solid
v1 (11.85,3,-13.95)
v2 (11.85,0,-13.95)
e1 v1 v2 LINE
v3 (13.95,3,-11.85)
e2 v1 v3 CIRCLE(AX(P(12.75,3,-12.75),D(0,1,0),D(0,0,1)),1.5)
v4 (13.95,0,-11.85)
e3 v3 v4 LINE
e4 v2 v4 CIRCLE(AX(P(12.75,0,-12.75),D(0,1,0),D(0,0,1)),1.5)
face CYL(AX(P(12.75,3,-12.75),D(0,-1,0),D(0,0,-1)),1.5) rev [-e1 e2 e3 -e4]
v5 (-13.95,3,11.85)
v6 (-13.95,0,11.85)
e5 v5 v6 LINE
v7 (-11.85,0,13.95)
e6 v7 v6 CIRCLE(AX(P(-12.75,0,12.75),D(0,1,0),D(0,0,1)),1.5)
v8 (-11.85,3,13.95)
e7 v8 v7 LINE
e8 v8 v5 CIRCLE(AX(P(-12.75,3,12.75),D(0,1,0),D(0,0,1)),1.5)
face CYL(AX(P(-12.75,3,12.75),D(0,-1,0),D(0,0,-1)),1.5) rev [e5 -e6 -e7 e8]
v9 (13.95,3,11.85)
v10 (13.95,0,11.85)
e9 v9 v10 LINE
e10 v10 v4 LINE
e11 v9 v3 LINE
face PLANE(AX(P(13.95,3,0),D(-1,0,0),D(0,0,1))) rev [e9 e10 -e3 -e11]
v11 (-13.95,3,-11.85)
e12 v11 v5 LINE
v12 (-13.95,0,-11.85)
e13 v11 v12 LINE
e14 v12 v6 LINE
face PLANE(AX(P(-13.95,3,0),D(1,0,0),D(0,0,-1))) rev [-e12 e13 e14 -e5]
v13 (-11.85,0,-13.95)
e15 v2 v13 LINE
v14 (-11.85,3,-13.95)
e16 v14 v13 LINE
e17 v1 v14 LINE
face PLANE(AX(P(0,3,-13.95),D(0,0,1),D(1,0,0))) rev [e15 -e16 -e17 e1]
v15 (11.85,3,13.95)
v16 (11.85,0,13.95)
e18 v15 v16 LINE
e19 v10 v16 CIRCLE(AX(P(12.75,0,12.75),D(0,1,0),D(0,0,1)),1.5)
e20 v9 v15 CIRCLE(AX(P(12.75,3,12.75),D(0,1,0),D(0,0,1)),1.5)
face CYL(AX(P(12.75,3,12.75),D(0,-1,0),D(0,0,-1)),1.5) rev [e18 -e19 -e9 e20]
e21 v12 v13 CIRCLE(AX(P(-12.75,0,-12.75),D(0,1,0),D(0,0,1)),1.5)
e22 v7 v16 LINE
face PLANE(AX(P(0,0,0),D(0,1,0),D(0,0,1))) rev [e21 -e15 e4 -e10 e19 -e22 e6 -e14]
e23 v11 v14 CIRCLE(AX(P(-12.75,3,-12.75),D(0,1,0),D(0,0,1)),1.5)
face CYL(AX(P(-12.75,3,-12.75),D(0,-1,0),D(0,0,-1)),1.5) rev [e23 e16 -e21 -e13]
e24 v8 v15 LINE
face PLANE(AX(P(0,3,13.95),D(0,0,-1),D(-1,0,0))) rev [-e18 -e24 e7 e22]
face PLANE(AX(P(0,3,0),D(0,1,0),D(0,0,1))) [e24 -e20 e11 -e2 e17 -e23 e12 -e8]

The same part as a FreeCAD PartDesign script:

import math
import FreeCAD as App
import Part
import Sketcher
Q = App.Units.Quantity

doc = App.newDocument("Part")
body = doc.addObject("PartDesign::Body", "Body")

# Sketch on XZ plane
sketch1 = body.newObject("Sketcher::SketchObject", "Sketch")
sketch1.AttachmentSupport = (doc.getObject("XZ_Plane"), [""])
sketch1.MapMode = "FlatFace"
sketch1.addGeometry(Part.ArcOfCircle(Part.Circle(App.Vector(-12.8, -12.8, 0), App.Vector(0, 0, 1), 1.5), math.radians(0), math.radians(143)), False)
sketch1.addGeometry(Part.LineSegment(App.Vector(-13.9, -11.8, 0), App.Vector(-13.9, 11.8, 0)), False)
sketch1.addGeometry(Part.ArcOfCircle(Part.Circle(App.Vector(-12.8, 12.8, 0), App.Vector(0, 0, 1), 1.5), math.radians(-143), math.radians(0)), False)
sketch1.addGeometry(Part.ArcOfCircle(Part.Circle(App.Vector(-12.7, 12.8, 0), App.Vector(0, 0, 1), 1.5), math.radians(0), math.radians(53)), False)
sketch1.addGeometry(Part.LineSegment(App.Vector(-11.8, 13.9, 0), App.Vector(11.8, 13.9, 0)), False)
sketch1.addGeometry(Part.ArcOfCircle(Part.Circle(App.Vector(12.8, 12.8, 0), App.Vector(0, 0, 1), 1.5), math.radians(127), math.radians(323)), False)
sketch1.addGeometry(Part.LineSegment(App.Vector(13.9, 11.8, 0), App.Vector(13.9, -11.8, 0)), False)
sketch1.addGeometry(Part.ArcOfCircle(Part.Circle(App.Vector(12.8, -12.8, 0), App.Vector(0, 0, 1), 1.5), math.radians(37), math.radians(233)), False)
sketch1.addGeometry(Part.LineSegment(App.Vector(11.8, -13.9, 0), App.Vector(-11.8, -13.9, 0)), False)
sketch1.addGeometry(Part.ArcOfCircle(Part.Circle(App.Vector(-12.8, -12.7, 0), App.Vector(0, 0, 1), 1.5), math.radians(-53), math.radians(0)), False)
sketch1.addConstraint(Sketcher.Constraint("Coincident", 0, 2, 1, 1))
sketch1.addConstraint(Sketcher.Constraint("Coincident", 1, 2, 2, 1))
sketch1.addConstraint(Sketcher.Constraint("Tangent", 2, 2, 3, 1))
sketch1.addConstraint(Sketcher.Constraint("Coincident", 3, 2, 4, 1))
sketch1.addConstraint(Sketcher.Constraint("Coincident", 4, 2, 5, 1))
sketch1.addConstraint(Sketcher.Constraint("Coincident", 5, 2, 6, 1))
sketch1.addConstraint(Sketcher.Constraint("Coincident", 6, 2, 7, 1))
sketch1.addConstraint(Sketcher.Constraint("Coincident", 7, 2, 8, 1))
sketch1.addConstraint(Sketcher.Constraint("Coincident", 8, 2, 9, 1))
sketch1.addConstraint(Sketcher.Constraint("Tangent", 9, 2, 0, 1))
sketch1.addConstraint(Sketcher.Constraint("Vertical", 1))
sketch1.addConstraint(Sketcher.Constraint("Horizontal", 4))
sketch1.addConstraint(Sketcher.Constraint("Vertical", 6))
sketch1.addConstraint(Sketcher.Constraint("Horizontal", 8))
sketch1.addConstraint(Sketcher.Constraint("Equal", 0, 2))
sketch1.addConstraint(Sketcher.Constraint("Equal", 2, 3))
sketch1.addConstraint(Sketcher.Constraint("Equal", 3, 5))
sketch1.addConstraint(Sketcher.Constraint("Equal", 5, 7))
sketch1.addConstraint(Sketcher.Constraint("Equal", 7, 9))
sketch1.addConstraint(Sketcher.Constraint("Symmetric", 0, 3, 5, 3, -1, 1))
sketch1.addConstraint(Sketcher.Constraint("Symmetric", 2, 3, 7, 3, -1, 1))
sketch1.addConstraint(Sketcher.Constraint("Symmetric", 2, 3, 5, 3, -2))
sketch1.addConstraint(Sketcher.Constraint("Horizontal", 5, 3, 2, 2))
sketch1.addConstraint(Sketcher.Constraint("Horizontal", 1, 2, 5, 2))
sketch1.addConstraint(Sketcher.Constraint("Horizontal", 7, 3, 9, 2))
sketch1.addConstraint(Sketcher.Constraint("Vertical", 4, 2, 7, 2))
sketch1.addConstraint(Sketcher.Constraint("Equal", 8, 1))
sketch1.addConstraint(Sketcher.Constraint("Radius", 0, Q("1.5 mm")))
sketch1.addConstraint(Sketcher.Constraint("DistanceX", 4, 1, 4, 2, Q("23.7 mm")))
sketch1.addConstraint(Sketcher.Constraint("DistanceX", 2, 2, 5, 3, Q("24 mm")))
sketch1.addConstraint(Sketcher.Constraint("DistanceY", 0, 3, 2, 3, Q("25.5 mm")))
pad1 = body.newObject("PartDesign::Pad", "Pad")
pad1.Profile = sketch1
pad1.Length = 3
pad1.Reversed = True

doc.recompute()
